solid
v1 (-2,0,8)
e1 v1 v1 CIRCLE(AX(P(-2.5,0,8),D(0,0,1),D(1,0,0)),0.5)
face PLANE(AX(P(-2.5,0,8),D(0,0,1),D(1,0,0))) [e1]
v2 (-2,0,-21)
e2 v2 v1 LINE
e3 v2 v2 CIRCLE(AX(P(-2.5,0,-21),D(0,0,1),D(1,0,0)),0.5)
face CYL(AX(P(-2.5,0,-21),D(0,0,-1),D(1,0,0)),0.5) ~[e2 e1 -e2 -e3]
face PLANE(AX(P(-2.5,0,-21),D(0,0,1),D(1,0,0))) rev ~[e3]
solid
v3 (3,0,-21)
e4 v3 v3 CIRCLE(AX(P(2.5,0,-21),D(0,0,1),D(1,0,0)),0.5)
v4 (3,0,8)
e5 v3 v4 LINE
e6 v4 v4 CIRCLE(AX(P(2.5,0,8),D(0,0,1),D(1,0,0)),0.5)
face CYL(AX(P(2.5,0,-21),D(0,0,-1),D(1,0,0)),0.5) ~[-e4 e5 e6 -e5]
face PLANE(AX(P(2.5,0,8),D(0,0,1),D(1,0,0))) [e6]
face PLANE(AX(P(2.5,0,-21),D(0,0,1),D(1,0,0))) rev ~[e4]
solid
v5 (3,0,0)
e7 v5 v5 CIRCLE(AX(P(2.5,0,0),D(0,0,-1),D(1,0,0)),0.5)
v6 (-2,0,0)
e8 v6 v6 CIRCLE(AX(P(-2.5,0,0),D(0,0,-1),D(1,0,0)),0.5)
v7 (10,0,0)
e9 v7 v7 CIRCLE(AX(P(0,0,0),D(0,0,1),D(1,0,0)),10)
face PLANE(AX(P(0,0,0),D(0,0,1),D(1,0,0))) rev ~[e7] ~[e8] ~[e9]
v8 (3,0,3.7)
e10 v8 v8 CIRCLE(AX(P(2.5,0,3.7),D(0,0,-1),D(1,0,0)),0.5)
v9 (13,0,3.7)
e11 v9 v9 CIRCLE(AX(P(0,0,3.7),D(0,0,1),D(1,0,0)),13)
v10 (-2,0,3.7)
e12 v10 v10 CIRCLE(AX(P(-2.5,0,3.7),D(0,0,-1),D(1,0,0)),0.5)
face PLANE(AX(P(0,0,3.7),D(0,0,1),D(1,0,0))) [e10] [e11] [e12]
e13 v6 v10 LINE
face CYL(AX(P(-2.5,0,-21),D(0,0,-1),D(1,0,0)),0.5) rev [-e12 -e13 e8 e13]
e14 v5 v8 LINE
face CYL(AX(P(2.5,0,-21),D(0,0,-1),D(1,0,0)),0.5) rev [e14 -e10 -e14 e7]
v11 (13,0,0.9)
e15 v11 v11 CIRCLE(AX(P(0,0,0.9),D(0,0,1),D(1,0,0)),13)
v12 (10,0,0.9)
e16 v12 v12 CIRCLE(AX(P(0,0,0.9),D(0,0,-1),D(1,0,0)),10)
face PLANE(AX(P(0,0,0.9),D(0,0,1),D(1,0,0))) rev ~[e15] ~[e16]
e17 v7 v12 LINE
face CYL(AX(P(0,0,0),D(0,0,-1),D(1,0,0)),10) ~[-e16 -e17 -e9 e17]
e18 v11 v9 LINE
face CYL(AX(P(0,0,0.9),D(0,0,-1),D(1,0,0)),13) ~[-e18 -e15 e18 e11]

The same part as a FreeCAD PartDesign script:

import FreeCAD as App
import Part
import Sketcher
from FreeCAD import Vector
Q = App.Units.Quantity

doc = App.newDocument("Part")
body = doc.addObject("PartDesign::Body", "Body")

# Sketch on XY plane
sketch1 = doc.addObject("Sketcher::SketchObject", "Sketch")
body.addObject(sketch1)
sketch1.AttachmentSupport = (doc.XY_Plane, [""])
sketch1.MapMode = "FlatFace"
sketch1.AttachmentOffset = App.Placement(Vector(0, 0, -21), App.Rotation())
sketch1.addGeometry(Part.Circle(Vector(2.5, 0, 0), Vector(0, 0, 1), 0.5), False)
sketch1.addConstraint(Sketcher.Constraint("PointOnObject", 0, 3, -1))
sketch1.addConstraint(Sketcher.Constraint("Diameter", 0, Q("1 mm")))
sketch1.addConstraint(Sketcher.Constraint("DistanceX", -1, 1, 0, 3, Q("2.5 mm")))
pad1 = doc.addObject("PartDesign::Pad", "Pad")
body.addObject(pad1)
pad1.Profile = sketch1
pad1.Length = 29
body2 = doc.addObject("PartDesign::Body", "Body001")

# Sketch on XY plane
sketch2 = doc.addObject("Sketcher::SketchObject", "Sketch001")
body2.addObject(sketch2)
sketch2.AttachmentSupport = (doc.getObject("XY_Plane001"), [""])
sketch2.MapMode = "FlatFace"
sketch2.AttachmentOffset = App.Placement(Vector(0, 0, -21), App.Rotation())
sketch2.addGeometry(Part.Circle(Vector(-2.5, 0, 0), Vector(0, 0, 1), 0.5), False)
sketch2.addConstraint(Sketcher.Constraint("PointOnObject", 0, 3, -1))
sketch2.addConstraint(Sketcher.Constraint("Diameter", 0, Q("1 mm")))
sketch2.addConstraint(Sketcher.Constraint("DistanceX", 0, 3, -1, 1, Q("2.5 mm")))
pad2 = doc.addObject("PartDesign::Pad", "Pad001")
body2.addObject(pad2)
pad2.Profile = sketch2
pad2.Length = 29
body3 = doc.addObject("PartDesign::Body", "Body002")

# Sketch on XY plane
sketch3 = doc.addObject("Sketcher::SketchObject", "Sketch002")
body3.addObject(sketch3)
sketch3.AttachmentSupport = (doc.getObject("XY_Plane002"), [""])
sketch3.MapMode = "FlatFace"
sketch3.AttachmentOffset = App.Placement(Vector(0, 0, -21), App.Rotation())
sketch3.addGeometry(Part.Circle(Vector(-2.5, 0, 0), Vector(0, 0, 1), 0.5), False)
sketch3.addConstraint(Sketcher.Constraint("PointOnObject", 0, 3, -1))
sketch3.addConstraint(Sketcher.Constraint("Diameter", 0, Q("1 mm")))
sketch3.addConstraint(Sketcher.Constraint("DistanceX", 0, 3, -1, 1, Q("2.5 mm")))
pad3 = doc.addObject("PartDesign::Pad", "Pad002")
body3.addObject(pad3)
pad3.Profile = sketch3
pad3.Length = 29
body4 = doc.addObject("PartDesign::Body", "Body003")
body4.AllowCompound = True

# Sketch on XY plane
sketch4 = doc.addObject("Sketcher::SketchObject", "Sketch003")
body4.addObject(sketch4)
sketch4.AttachmentSupport = (doc.getObject("XY_Plane003"), [""])
sketch4.MapMode = "FlatFace"
sketch4.AttachmentOffset = App.Placement(Vector(0, 0, -21), App.Rotation())
sketch4.addGeometry(Part.Circle(Vector(2.5, 0, 0), Vector(0, 0, 1), 0.5), False)
sketch4.addConstraint(Sketcher.Constraint("PointOnObject", 0, 3, -1))
sketch4.addConstraint(Sketcher.Constraint("Diameter", 0, Q("1 mm")))
sketch4.addConstraint(Sketcher.Constraint("DistanceX", -1, 1, 0, 3, Q("2.5 mm")))
pad4 = doc.addObject("PartDesign::Pad", "Pad003")
body4.addObject(pad4)
pad4.Profile = sketch4
pad4.Length = 29
doc.recompute()

boolean = doc.addObject("PartDesign::Boolean", "Boolean")
body4.addObject(boolean)
boolean.Type = "Fuse"
boolean.addObjects([body3])
body5 = doc.addObject("PartDesign::Body", "Body004")

# Sketch on XY plane
sketch5 = doc.addObject("Sketcher::SketchObject", "Sketch004")
body5.addObject(sketch5)
sketch5.AttachmentSupport = (doc.getObject("XY_Plane004"), [""])
sketch5.MapMode = "FlatFace"
sketch5.addGeometry(Part.Circle(Vector(0, 0, 0), Vector(0, 0, 1), 10), False)
sketch5.addConstraint(Sketcher.Constraint("Coincident", 0, 3, -1, 1))
sketch5.addConstraint(Sketcher.Constraint("Diameter", 0, Q("20 mm")))
pad5 = doc.addObject("PartDesign::Pad", "Pad004")
body5.addObject(pad5)
pad5.Profile = sketch5
pad5.Length = 3.7
body6 = doc.addObject("PartDesign::Body", "Body005")

# Sketch on XY plane
sketch6 = doc.addObject("Sketcher::SketchObject", "Sketch005")
body6.addObject(sketch6)
sketch6.AttachmentSupport = (doc.getObject("XY_Plane005"), [""])
sketch6.MapMode = "FlatFace"
sketch6.AttachmentOffset = App.Placement(Vector(0, 0, 0.9), App.Rotation())
sketch6.addGeometry(Part.Circle(Vector(0, 0, 0), Vector(0, 0, 1), 13), False)
sketch6.addConstraint(Sketcher.Constraint("Coincident", 0, 3, -1, 1))
sketch6.addConstraint(Sketcher.Constraint("Diameter", 0, Q("26 mm")))
pad6 = doc.addObject("PartDesign::Pad", "Pad005")
body6.addObject(pad6)
pad6.Profile = sketch6
pad6.Length = 2.8
doc.recompute()

boolean2 = doc.addObject("PartDesign::Boolean", "Boolean001")
body6.addObject(boolean2)
boolean2.Type = "Fuse"
boolean2.addObjects([body5])
doc.recompute()

boolean3 = doc.addObject("PartDesign::Boolean", "Boolean002")
body6.addObject(boolean3)
boolean3.Type = "Cut"
boolean3.addObjects([body4])

doc.recompute()
